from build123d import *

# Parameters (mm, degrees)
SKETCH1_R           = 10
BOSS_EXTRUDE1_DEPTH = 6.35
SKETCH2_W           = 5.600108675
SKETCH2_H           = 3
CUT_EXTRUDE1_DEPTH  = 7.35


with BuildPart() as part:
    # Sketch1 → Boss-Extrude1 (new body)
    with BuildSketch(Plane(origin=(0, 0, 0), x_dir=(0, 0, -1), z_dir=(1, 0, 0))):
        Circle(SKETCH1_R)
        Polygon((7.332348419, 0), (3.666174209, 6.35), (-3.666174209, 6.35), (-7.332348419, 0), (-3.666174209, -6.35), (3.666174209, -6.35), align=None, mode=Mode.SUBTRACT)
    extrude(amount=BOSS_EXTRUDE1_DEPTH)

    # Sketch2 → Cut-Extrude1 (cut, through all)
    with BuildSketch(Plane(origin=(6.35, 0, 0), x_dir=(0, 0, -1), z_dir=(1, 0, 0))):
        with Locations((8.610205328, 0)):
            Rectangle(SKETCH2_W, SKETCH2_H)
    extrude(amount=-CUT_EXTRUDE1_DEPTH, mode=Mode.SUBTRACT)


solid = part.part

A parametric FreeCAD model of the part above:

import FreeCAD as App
import Part
import Sketcher
from FreeCAD import Vector
Q = App.Units.Quantity


def add_polygon(sketch, points):
    """Adds a closed chain of lines whose ends are joined by coincident constraints."""
    first, n = sketch.GeometryCount, len(points)
    for a, b in zip(points, points[1:] + points[:1]):
        sketch.addGeometry(Part.LineSegment(App.Vector(*a, 0), App.Vector(*b, 0)), False)
    for i in range(n):
        sketch.addConstraint(Sketcher.Constraint("Coincident", first + i, 2, first + (i + 1) % n, 1))

doc = App.newDocument("Part")
body = doc.addObject("PartDesign::Body", "Body")

sketch1 = doc.addObject("Sketcher::SketchObject", "Sketch")
body.addObject(sketch1)
sketch1.AttachmentSupport = (doc.YZ_Plane, [""])
sketch1.MapMode = "FlatFace"
sketch1.addGeometry(Part.Circle(Vector(0, 0, 0), Vector(0, 0, 1), 10), False)
add_polygon(sketch1, [(6, -4), (0, -7), (-6, -4), (-6, 4), (0, 7), (6, 4)])
sketch1.addConstraint([
    Sketcher.Constraint("Vertical", 3),
    Sketcher.Constraint("Vertical", 6),
    Sketcher.Constraint("Coincident", 0, 3, -1, 1),
    Sketcher.Constraint("Symmetric", 1, 2, 4, 2, -1, 1),
    Sketcher.Constraint("Symmetric", 2, 2, 5, 2, -1, 1),
    Sketcher.Constraint("PointOnObject", 1, 2, -2),
    Sketcher.Constraint("Parallel", 1, 4),
    Sketcher.Constraint("Horizontal", 3, 2, 5, 2),
    Sketcher.Constraint("Diameter", 0, 20.0),
    Sketcher.Constraint("Angle", 1, Q("-150 deg")),
    Sketcher.Constraint("DistanceX", 3, 2, 5, 2, 12.7),
    Sketcher.Constraint("DistanceY", 3, 1, 3, 2, 7.332348),
])
pad1 = doc.addObject("PartDesign::Pad", "Pad")
body.addObject(pad1)
pad1.Profile = sketch1
pad1.Length = 6.35

sketch2 = doc.addObject("Sketcher::SketchObject", "Sketch001")
body.addObject(sketch2)
sketch2.AttachmentSupport = (doc.YZ_Plane, [""])
sketch2.MapMode = "FlatFace"
sketch2.AttachmentOffset = App.Placement(Vector(0, 0, 6.35), App.Rotation())
add_polygon(sketch2, [(1.5, -5.8), (-1.5, -5.8), (-1.5, -11.4), (1.5, -11.4)])
sketch2.addConstraint([
    Sketcher.Constraint("Horizontal", 0),
    Sketcher.Constraint("Vertical", 1),
    Sketcher.Constraint("Horizontal", 2),
    Sketcher.Constraint("Vertical", 3),
    Sketcher.Constraint("DistanceX", 0, 2, 0, 1, 3.0),
    Sketcher.Constraint("DistanceX", 0, 2, -1, 1, 1.5),
    Sketcher.Constraint("DistanceY", 1, 2, 1, 1, 5.600109),
    Sketcher.Constraint("DistanceY", 0, 2, -1, 1, 5.810151),
])
pocket1 = doc.addObject("PartDesign::Pocket", "Pocket")
body.addObject(pocket1)
pocket1.Profile = sketch2
pocket1.Type = "ThroughAll"

doc.recompute()
